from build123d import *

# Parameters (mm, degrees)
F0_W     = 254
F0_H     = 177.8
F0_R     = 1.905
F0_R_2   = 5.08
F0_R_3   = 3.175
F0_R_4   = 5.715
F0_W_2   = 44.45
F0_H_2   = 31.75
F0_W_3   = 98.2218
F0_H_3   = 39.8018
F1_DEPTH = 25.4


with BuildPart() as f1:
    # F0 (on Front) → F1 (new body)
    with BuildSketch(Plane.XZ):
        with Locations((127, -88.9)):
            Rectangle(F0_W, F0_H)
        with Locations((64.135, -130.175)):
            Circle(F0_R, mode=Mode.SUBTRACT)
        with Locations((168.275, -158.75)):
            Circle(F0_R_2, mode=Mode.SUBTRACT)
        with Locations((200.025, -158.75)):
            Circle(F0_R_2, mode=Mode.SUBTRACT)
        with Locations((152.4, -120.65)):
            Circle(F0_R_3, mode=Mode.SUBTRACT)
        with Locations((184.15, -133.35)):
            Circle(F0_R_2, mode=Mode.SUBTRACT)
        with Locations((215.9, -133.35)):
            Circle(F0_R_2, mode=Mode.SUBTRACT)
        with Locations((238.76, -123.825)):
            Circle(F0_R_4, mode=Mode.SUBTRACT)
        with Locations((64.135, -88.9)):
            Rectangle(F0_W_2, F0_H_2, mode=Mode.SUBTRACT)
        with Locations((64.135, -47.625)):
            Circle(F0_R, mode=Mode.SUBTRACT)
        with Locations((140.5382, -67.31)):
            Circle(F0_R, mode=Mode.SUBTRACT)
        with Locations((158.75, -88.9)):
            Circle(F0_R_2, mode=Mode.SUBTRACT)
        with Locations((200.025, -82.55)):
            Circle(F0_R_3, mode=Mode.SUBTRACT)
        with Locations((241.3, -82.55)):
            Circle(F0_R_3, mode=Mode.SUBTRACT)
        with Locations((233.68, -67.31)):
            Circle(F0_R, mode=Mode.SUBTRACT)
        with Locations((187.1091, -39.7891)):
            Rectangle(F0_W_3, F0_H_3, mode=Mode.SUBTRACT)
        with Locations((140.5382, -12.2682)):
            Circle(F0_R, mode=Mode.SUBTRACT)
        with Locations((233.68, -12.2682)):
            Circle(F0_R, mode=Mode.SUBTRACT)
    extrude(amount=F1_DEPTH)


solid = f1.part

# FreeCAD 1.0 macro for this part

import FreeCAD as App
import Part
import Sketcher
Q = App.Units.Quantity


def add_polygon(sketch, points):
    """Adds a closed chain of lines whose ends are joined by coincident constraints."""
    first, n = sketch.GeometryCount, len(points)
    for a, b in zip(points, points[1:] + points[:1]):
        sketch.addGeometry(Part.LineSegment(App.Vector(*a, 0), App.Vector(*b, 0)), False)
    for i in range(n):
        sketch.addConstraint(Sketcher.Constraint("Coincident", first + i, 2, first + (i + 1) % n, 1))

doc = App.newDocument("Part")
params = doc.addObject("Spreadsheet::Sheet", "Params")
for row, (alias, value) in enumerate([
    ("sketch1_diameter", "0.4 in"),
    ("sketch1_diameter2", "0.15 in"),
    ("sketch1_diameter3", "0.25 in"),
    ("sketch1_diameter4", "0.45 in"),
    ("sketch1_width", "10 in"),
    ("pad1_length", "1 in"),
], start=1):
    params.set(f"A{row}", alias)
    params.set(f"B{row}", "=" + value)
    params.setAlias(f"B{row}", alias)

body = doc.addObject("PartDesign::Body", "Body")

# Sketch on XZ plane
sketch1 = body.newObject("Sketcher::SketchObject", "Sketch")
sketch1.AttachmentSupport = (doc.getObject("XZ_Plane"), [""])
sketch1.MapMode = "FlatFace"
add_polygon(sketch1, [(0, 0), (0, -177.8), (254, -177.8), (254, 0)])  # lines 0-3
sketch1.addGeometry(Part.Circle(App.Vector(64.135, -130.175, 0), App.Vector(0, 0, 1), 1.905), False)  # 4
add_polygon(sketch1, [(86.36, -104.775), (41.91, -104.775), (41.91, -73.025), (86.36, -73.025)])  # lines 5-8
sketch1.addGeometry(Part.Circle(App.Vector(168.275, -158.75, 0), App.Vector(0, 0, 1), 5.08), False)  # 9
sketch1.addGeometry(Part.Circle(App.Vector(184.15, -133.35, 0), App.Vector(0, 0, 1), 5.08), False)  # 10
sketch1.addGeometry(Part.Circle(App.Vector(200.025, -158.75, 0), App.Vector(0, 0, 1), 5.08), False)  # 11
sketch1.addGeometry(Part.Circle(App.Vector(215.9, -133.35, 0), App.Vector(0, 0, 1), 5.08), False)  # 12
sketch1.addGeometry(Part.Circle(App.Vector(152.4, -120.65, 0), App.Vector(0, 0, 1), 3.175), False)  # 13
sketch1.addGeometry(Part.Circle(App.Vector(158.75, -88.9, 0), App.Vector(0, 0, 1), 5.08), False)  # 14
sketch1.addGeometry(Part.Circle(App.Vector(238.76, -123.825, 0), App.Vector(0, 0, 1), 5.715), False)  # 15
sketch1.addGeometry(Part.Circle(App.Vector(140.5382, -67.31, 0), App.Vector(0, 0, 1), 1.905), False)  # 16
sketch1.addGeometry(Part.Circle(App.Vector(64.135, -47.625, 0), App.Vector(0, 0, 1), 1.905), False)  # 17
sketch1.addGeometry(Part.Circle(App.Vector(140.5382, -12.2682, 0), App.Vector(0, 0, 1), 1.905), False)  # 18
sketch1.addGeometry(Part.Circle(App.Vector(200.025, -82.55, 0), App.Vector(0, 0, 1), 3.175), False)  # 19
sketch1.addGeometry(Part.Circle(App.Vector(241.3, -82.55, 0), App.Vector(0, 0, 1), 3.175), False)  # 20
sketch1.addGeometry(Part.Circle(App.Vector(233.68, -67.31, 0), App.Vector(0, 0, 1), 1.905), False)  # 21
add_polygon(sketch1, [(236.22, -59.69), (137.9982, -59.69), (137.9982, -19.8882), (236.22, -19.8882)])  # lines 22-25
sketch1.addGeometry(Part.Circle(App.Vector(233.68, -12.2682, 0), App.Vector(0, 0, 1), 1.905), False)  # 26
sketch1.addConstraint([
    Sketcher.Constraint("Vertical", 0),
    Sketcher.Constraint("Horizontal", 1),
    Sketcher.Constraint("Vertical", 2),
    Sketcher.Constraint("Horizontal", 3),
    Sketcher.Constraint("Horizontal", 5),
    Sketcher.Constraint("Vertical", 6),
    Sketcher.Constraint("Horizontal", 7),
    Sketcher.Constraint("Vertical", 8),
    Sketcher.Constraint("Horizontal", 22),
    Sketcher.Constraint("Vertical", 23),
    Sketcher.Constraint("Horizontal", 24),
    Sketcher.Constraint("Vertical", 25),
    Sketcher.Constraint("Coincident", 3, 2, -1, 1),
    Sketcher.Constraint("Equal", 9, 10),
    Sketcher.Constraint("Equal", 10, 11),
    Sketcher.Constraint("Equal", 11, 12),
    Sketcher.Constraint("Equal", 12, 14),
    Sketcher.Constraint("Equal", 4, 16),
    Sketcher.Constraint("Equal", 16, 17),
    Sketcher.Constraint("Equal", 17, 18),
    Sketcher.Constraint("Equal", 13, 19),
    Sketcher.Constraint("Equal", 19, 20),
    Sketcher.Constraint("Equal", 18, 21),
    Sketcher.Constraint("Equal", 21, 26),
    Sketcher.Constraint("Horizontal", 9, 3, 11, 3),
    Sketcher.Constraint("Horizontal", 10, 3, 12, 3),
    Sketcher.Constraint("Horizontal", 19, 3, 20, 3),
    Sketcher.Constraint("Horizontal", 16, 3, 21, 3),
    Sketcher.Constraint("Horizontal", 18, 3, 26, 3),
    Sketcher.Constraint("Vertical", 4, 3, 17, 3),
    Sketcher.Constraint("Vertical", 16, 3, 18, 3),
    Sketcher.Constraint("Vertical", 11, 3, 19, 3),
    Sketcher.Constraint("Vertical", 21, 3, 26, 3),
    Sketcher.Constraint("Diameter", 9, Q("0.4 in")),
    Sketcher.Constraint("Diameter", 4, Q("0.15 in")),
    Sketcher.Constraint("Diameter", 13, Q("0.25 in")),
    Sketcher.Constraint("Diameter", 15, Q("0.45 in")),
    Sketcher.Constraint("DistanceX", 1, 1, 1, 2, Q("10 in")),
    Sketcher.Constraint("DistanceY", 0, 2, 0, 1, Q("7 in")),
    Sketcher.Constraint("DistanceX", -1, 1, 13, 3, Q("6 in")),
    Sketcher.Constraint("DistanceY", 9, 3, 10, 3, Q("1 in")),
    Sketcher.Constraint("DistanceX", 14, 3, 10, 3, Q("1 in")),
    Sketcher.Constraint("DistanceY", 10, 3, 19, 3, Q("2 in")),
    Sketcher.Constraint("DistanceX", 12, 3, 20, 3, Q("1 in")),
    Sketcher.Constraint("DistanceY", 4, 3, 5, 2, Q("1 in")),
    Sketcher.Constraint("DistanceY", 6, 2, 17, 3, Q("1 in")),
    Sketcher.Constraint("DistanceX", 5, 2, 5, 1, Q("1.75 in")),
    Sketcher.Constraint("DistanceY", 6, 1, 6, 2, Q("1.25 in")),
    Sketcher.Constraint("DistanceX", -1, 1, 12, 3, Q("8.5 in")),
    Sketcher.Constraint("DistanceY", 14, 3, -1, 1, Q("3.5 in")),
    Sketcher.Constraint("DistanceX", -1, 1, 15, 3, Q("9.4 in")),
    Sketcher.Constraint("DistanceX", -1, 1, 21, 3, Q("9.2 in")),
    Sketcher.Constraint("DistanceX", -1, 1, 7, 2, Q("3.4 in")),
    Sketcher.Constraint("DistanceX", -1, 1, 24, 2, Q("9.3 in")),
    Sketcher.Constraint("DistanceX", 4, 3, 9, 3, Q("4.1 in")),
    Sketcher.Constraint("DistanceY", 10, 3, 13, 3, Q("0.5 in")),
    Sketcher.Constraint("DistanceY", 13, 3, 16, 3, Q("2.1 in")),
    Sketcher.Constraint("DistanceX", 22, 2, 16, 3, Q("0.1 in")),
    Sketcher.Constraint("DistanceY", 16, 3, 22, 2, Q("0.3 in")),
    Sketcher.Constraint("DistanceY", 23, 2, 18, 3, Q("0.3 in")),
    Sketcher.Constraint("DistanceX", 22, 2, 22, 1, Q("3.867 in")),
    Sketcher.Constraint("DistanceY", 23, 1, 23, 2, Q("1.567 in")),
    Sketcher.Constraint("DistanceY", 9, 3, -1, 1, Q("6.25 in")),
    Sketcher.Constraint("DistanceX", -1, 1, 10, 3, Q("7.25 in")),
    Sketcher.Constraint("DistanceX", 9, 3, 11, 3, Q("1.25 in")),
    Sketcher.Constraint("DistanceX", -1, 1, 4, 3, Q("2.525 in")),
    Sketcher.Constraint("DistanceY", 4, 3, -1, 1, Q("5.125 in")),
    Sketcher.Constraint("DistanceY", 15, 3, -1, 1, Q("4.875 in")),
])
sketch1.setExpression("Constraints[45]", "Params.sketch1_diameter")
sketch1.setExpression("Constraints[46]", "Params.sketch1_diameter2")
sketch1.setExpression("Constraints[47]", "Params.sketch1_diameter3")
sketch1.setExpression("Constraints[48]", "Params.sketch1_diameter4")
sketch1.setExpression("Constraints[49]", "Params.sketch1_width")
pad1 = body.newObject("PartDesign::Pad", "Pad")
pad1.Profile = sketch1
pad1.setExpression("Length", "Params.pad1_length")

doc.recompute()
